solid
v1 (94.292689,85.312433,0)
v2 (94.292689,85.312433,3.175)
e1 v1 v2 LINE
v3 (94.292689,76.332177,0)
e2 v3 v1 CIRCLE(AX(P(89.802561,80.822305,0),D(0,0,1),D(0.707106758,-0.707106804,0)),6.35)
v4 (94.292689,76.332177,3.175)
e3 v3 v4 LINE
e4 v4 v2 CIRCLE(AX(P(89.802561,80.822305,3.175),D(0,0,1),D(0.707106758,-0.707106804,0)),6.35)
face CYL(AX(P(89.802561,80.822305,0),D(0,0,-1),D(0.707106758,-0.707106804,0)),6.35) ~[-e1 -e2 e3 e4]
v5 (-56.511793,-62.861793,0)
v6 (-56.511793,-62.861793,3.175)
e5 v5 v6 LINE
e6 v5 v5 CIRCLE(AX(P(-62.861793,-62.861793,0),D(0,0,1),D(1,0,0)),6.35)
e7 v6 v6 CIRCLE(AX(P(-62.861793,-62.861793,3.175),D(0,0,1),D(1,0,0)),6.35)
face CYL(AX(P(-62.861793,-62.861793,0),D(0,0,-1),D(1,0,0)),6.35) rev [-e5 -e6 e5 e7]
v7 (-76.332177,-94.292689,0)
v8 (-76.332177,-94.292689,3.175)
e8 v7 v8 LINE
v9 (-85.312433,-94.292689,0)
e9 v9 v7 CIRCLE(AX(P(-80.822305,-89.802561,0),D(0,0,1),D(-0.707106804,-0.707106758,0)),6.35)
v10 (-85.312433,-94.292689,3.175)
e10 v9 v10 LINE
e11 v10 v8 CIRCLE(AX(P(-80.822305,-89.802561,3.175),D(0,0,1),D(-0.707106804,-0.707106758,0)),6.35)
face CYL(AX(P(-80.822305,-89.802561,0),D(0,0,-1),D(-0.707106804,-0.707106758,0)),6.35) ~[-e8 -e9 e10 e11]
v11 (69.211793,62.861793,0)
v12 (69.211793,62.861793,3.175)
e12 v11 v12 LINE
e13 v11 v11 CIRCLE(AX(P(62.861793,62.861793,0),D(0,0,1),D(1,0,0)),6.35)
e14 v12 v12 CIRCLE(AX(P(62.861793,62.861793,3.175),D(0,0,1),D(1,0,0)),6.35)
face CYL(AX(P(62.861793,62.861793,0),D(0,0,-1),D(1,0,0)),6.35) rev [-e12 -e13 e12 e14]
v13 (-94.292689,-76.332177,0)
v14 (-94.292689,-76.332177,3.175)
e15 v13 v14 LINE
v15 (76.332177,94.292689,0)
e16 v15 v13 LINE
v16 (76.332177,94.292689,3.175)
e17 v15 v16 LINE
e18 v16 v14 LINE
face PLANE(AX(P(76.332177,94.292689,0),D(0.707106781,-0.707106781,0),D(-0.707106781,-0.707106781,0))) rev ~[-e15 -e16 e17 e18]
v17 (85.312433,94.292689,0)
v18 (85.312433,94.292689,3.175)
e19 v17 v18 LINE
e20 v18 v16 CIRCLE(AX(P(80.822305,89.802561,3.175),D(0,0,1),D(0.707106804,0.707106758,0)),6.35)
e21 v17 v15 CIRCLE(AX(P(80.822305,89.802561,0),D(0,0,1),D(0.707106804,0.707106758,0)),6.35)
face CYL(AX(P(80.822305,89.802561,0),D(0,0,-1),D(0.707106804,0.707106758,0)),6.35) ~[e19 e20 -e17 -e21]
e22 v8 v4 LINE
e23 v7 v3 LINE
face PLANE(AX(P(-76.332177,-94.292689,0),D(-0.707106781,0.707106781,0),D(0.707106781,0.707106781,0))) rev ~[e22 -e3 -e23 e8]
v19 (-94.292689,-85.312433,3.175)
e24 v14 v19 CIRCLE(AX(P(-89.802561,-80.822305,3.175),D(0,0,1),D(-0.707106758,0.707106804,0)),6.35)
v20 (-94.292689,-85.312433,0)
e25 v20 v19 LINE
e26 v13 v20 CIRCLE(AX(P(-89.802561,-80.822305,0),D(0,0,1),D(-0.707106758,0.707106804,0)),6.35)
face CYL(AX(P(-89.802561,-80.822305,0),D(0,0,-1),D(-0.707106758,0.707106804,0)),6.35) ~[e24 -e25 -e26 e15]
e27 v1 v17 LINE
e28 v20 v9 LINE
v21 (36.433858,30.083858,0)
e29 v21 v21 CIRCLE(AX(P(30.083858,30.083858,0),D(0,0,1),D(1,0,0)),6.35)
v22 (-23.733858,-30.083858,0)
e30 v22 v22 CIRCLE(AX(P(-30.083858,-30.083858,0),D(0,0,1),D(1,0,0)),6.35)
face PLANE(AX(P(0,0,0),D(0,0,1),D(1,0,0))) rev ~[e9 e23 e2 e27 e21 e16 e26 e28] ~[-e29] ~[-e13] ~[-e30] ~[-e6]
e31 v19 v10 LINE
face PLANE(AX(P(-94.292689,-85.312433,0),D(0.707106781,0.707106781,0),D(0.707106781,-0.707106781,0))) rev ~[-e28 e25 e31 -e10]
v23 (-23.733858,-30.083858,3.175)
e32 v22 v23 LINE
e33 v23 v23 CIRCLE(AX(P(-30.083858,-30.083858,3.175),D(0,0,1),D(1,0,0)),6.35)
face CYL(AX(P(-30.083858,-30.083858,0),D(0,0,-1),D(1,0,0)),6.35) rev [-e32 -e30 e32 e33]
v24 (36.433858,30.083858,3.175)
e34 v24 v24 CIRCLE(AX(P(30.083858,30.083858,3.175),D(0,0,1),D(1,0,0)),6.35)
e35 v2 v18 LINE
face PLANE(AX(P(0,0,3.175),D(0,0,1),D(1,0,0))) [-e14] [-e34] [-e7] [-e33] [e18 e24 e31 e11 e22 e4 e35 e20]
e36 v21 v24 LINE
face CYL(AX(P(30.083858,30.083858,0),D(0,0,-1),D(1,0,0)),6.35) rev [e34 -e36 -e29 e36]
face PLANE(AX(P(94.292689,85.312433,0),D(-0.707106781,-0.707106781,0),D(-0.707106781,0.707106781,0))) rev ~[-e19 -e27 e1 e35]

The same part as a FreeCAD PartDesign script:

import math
import FreeCAD as App
import Part
import Sketcher
from FreeCAD import Vector
Q = App.Units.Quantity

doc = App.newDocument("Part")
body = doc.addObject("PartDesign::Body", "Body")

# Sketch on XY plane
sketch1 = doc.addObject("Sketcher::SketchObject", "Sketch")
body.addObject(sketch1)
sketch1.AttachmentSupport = (doc.XY_Plane, [""])
sketch1.MapMode = "FlatFace"
sketch1.addGeometry([
    Part.LineSegment(Vector(76.332177, 94.292689, 0), Vector(-94.292689, -76.332177, 0)),  # 0
    Part.ArcOfCircle(Part.Circle(Vector(-89.802561, -80.822305, 0), Vector(0, 0, 1), 6.35), math.radians(134.999998), math.radians(225.000002)),  # 1
    Part.LineSegment(Vector(-94.292689, -85.312433, 0), Vector(-85.312433, -94.292689, 0)),  # 2
    Part.ArcOfCircle(Part.Circle(Vector(-80.822305, -89.802561, 0), Vector(0, 0, 1), 6.35), math.radians(-135.000002), math.radians(-44.999998)),  # 3
    Part.LineSegment(Vector(-76.332177, -94.292689, 0), Vector(94.292689, 76.332177, 0)),  # 4
    Part.ArcOfCircle(Part.Circle(Vector(89.802561, 80.822305, 0), Vector(0, 0, 1), 6.35), math.radians(-45.000002), math.radians(45.000002)),  # 5
    Part.LineSegment(Vector(94.292689, 85.312433, 0), Vector(85.312433, 94.292689, 0)),  # 6
    Part.ArcOfCircle(Part.Circle(Vector(80.822305, 89.802561, 0), Vector(0, 0, 1), 6.35), math.radians(44.999998), math.radians(135.000002)),  # 7
    Part.Circle(Vector(-62.861793, -62.861793, 0), Vector(0, 0, 1), 6.35),  # 8
    Part.Circle(Vector(-30.083858, -30.083858, 0), Vector(0, 0, 1), 6.35),  # 9
    Part.Circle(Vector(30.083858, 30.083858, 0), Vector(0, 0, 1), 6.35),  # 10
    Part.Circle(Vector(62.861793, 62.861793, 0), Vector(0, 0, 1), 6.35),  # 11
], False)
sketch1.addConstraint([
    Sketcher.Constraint("Tangent", 0, 2, 1, 1),
    Sketcher.Constraint("Tangent", 1, 2, 2, 1),
    Sketcher.Constraint("Tangent", 2, 2, 3, 1),
    Sketcher.Constraint("Tangent", 3, 2, 4, 1),
    Sketcher.Constraint("Tangent", 4, 2, 5, 1),
    Sketcher.Constraint("Tangent", 5, 2, 6, 1),
    Sketcher.Constraint("Tangent", 6, 2, 7, 1),
    Sketcher.Constraint("Tangent", 7, 2, 0, 1),
    Sketcher.Constraint("Equal", 1, 3),
    Sketcher.Constraint("Equal", 3, 5),
    Sketcher.Constraint("Equal", 5, 7),
    Sketcher.Constraint("Equal", 7, 8),
    Sketcher.Constraint("Equal", 8, 9),
    Sketcher.Constraint("Equal", 9, 10),
    Sketcher.Constraint("Equal", 10, 11),
    Sketcher.Constraint("Symmetric", 1, 3, 5, 3, -1, 1),
    Sketcher.Constraint("Symmetric", 3, 3, 7, 3, -1, 1),
    Sketcher.Constraint("Symmetric", 9, 3, 10, 3, -1, 1),
    Sketcher.Constraint("Symmetric", 8, 3, 11, 3, -1, 1),
    Sketcher.Constraint("Perpendicular", 0, 2),
    Sketcher.Constraint("Horizontal", 2, 2, 3, 2),
    Sketcher.Constraint("Diameter", 8, Q("0.5 in")),
    Sketcher.Constraint("Distance", 0, Q("9.5 in")),
    Sketcher.Constraint("Distance", 2, Q("0.5 in")),
    Sketcher.Constraint("DistanceY", 0, 2, 9, 3, Q("1.8208 in")),
    Sketcher.Constraint("DistanceY", 8, 3, 5, 3, 143.684098),
    Sketcher.Constraint("DistanceX", 8, 3, 7, 3, 143.684098),
    Sketcher.Constraint("DistanceX", 9, 3, 5, 3, 119.886419),
])
pad1 = doc.addObject("PartDesign::Pad", "Pad")
body.addObject(pad1)
pad1.Profile = sketch1
pad1.Length = Q("0.125 in")

doc.recompute()
